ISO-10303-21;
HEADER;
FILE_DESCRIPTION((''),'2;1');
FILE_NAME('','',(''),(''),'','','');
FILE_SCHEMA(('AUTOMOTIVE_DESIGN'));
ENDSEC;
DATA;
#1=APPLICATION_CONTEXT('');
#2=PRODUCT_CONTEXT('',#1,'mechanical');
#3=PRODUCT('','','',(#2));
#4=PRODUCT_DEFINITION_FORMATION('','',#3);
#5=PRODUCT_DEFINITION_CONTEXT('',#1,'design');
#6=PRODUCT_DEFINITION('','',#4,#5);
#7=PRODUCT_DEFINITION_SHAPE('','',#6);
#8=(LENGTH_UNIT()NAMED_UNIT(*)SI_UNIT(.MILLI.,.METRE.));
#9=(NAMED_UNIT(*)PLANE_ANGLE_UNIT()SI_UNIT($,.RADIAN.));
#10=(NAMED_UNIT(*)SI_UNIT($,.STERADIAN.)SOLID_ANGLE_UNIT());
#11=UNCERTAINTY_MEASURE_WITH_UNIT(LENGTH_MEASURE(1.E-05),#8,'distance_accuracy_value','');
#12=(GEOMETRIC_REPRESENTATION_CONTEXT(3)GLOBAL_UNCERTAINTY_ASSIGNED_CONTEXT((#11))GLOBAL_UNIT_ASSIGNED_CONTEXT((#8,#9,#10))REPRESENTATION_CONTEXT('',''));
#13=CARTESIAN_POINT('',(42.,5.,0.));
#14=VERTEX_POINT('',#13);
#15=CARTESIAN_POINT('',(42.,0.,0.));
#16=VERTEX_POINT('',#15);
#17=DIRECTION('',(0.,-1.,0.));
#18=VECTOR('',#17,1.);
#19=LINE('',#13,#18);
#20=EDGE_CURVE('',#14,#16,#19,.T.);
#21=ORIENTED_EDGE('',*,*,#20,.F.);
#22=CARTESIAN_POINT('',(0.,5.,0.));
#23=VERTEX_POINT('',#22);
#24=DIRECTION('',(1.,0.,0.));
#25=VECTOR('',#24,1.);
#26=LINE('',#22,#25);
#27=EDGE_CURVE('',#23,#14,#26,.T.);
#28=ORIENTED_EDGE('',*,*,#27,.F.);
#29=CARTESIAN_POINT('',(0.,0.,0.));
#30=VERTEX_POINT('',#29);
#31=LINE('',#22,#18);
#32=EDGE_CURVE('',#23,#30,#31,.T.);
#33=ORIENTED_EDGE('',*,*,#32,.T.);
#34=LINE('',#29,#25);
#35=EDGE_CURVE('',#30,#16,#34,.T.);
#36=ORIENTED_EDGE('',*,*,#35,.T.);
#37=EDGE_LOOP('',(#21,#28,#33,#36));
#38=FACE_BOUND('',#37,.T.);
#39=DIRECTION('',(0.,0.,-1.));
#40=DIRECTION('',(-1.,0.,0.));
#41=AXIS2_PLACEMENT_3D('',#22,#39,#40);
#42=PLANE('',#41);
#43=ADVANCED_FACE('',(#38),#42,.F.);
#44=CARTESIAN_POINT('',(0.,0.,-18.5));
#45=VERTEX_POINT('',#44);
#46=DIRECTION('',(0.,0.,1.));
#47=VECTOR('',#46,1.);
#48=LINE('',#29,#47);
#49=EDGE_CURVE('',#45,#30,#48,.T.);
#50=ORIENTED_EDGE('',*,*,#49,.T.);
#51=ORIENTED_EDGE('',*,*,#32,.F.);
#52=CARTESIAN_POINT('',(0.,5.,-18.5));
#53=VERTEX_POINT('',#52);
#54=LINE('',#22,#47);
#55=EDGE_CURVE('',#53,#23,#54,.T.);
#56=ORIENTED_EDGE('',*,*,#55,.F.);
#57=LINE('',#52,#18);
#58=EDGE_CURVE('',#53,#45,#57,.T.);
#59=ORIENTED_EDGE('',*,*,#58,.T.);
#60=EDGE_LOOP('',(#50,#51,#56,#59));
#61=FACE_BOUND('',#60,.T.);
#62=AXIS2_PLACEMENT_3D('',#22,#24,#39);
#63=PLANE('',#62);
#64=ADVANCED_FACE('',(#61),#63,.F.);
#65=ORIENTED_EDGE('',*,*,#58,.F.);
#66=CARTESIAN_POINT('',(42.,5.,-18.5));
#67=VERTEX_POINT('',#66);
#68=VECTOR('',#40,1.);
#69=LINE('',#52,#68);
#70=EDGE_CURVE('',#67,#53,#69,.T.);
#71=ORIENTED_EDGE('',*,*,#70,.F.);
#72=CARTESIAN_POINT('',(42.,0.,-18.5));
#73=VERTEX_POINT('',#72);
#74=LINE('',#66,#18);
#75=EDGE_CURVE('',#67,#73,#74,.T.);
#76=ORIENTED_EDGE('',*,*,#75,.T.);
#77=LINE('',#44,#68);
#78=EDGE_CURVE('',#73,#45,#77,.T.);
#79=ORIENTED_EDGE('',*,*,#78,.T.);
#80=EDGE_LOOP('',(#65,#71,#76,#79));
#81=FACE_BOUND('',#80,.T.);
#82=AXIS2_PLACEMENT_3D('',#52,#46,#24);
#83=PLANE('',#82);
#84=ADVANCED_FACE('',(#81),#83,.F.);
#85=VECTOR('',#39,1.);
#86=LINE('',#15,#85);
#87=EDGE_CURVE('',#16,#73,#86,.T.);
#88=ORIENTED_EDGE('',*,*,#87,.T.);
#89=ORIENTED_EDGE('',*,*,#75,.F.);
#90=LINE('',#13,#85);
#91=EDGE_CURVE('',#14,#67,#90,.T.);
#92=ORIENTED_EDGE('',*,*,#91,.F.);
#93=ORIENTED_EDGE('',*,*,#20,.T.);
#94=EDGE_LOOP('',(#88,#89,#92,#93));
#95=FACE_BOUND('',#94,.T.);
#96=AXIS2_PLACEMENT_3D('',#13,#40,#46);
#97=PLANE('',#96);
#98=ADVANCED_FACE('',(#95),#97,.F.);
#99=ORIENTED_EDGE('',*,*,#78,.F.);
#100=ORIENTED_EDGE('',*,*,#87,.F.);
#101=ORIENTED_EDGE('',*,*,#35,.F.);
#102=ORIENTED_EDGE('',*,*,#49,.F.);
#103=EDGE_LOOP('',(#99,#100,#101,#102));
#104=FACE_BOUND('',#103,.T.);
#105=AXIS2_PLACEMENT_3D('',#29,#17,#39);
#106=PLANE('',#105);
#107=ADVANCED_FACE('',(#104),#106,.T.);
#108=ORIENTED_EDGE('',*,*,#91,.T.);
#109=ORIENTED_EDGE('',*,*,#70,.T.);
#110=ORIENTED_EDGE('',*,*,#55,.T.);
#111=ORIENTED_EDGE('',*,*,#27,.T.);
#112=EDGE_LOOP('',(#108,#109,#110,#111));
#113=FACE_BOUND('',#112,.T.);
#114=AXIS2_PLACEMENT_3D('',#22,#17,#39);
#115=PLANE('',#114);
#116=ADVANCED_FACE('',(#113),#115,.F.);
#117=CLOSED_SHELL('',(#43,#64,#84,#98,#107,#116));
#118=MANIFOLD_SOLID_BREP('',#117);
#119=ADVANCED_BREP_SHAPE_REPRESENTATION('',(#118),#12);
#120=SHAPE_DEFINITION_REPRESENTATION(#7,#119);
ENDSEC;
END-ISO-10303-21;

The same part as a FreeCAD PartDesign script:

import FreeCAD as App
import Part
import Sketcher
Q = App.Units.Quantity

doc = App.newDocument("Part")
body = doc.addObject("PartDesign::Body", "Body")

# Sketch on XZ plane
sketch1 = body.newObject("Sketcher::SketchObject", "Sketch")
sketch1.AttachmentSupport = (doc.getObject("XZ_Plane"), [""])
sketch1.MapMode = "FlatFace"
sketch1.addGeometry([
    Part.LineSegment(App.Vector(0, -18.5, 0), App.Vector(0, 0, 0)),
    Part.LineSegment(App.Vector(0, 0, 0), App.Vector(42, 0, 0)),
    Part.LineSegment(App.Vector(42, 0, 0), App.Vector(42, -18.5, 0)),
    Part.LineSegment(App.Vector(42, -18.5, 0), App.Vector(0, -18.5, 0)),
], False)
sketch1.addConstraint([
    Sketcher.Constraint("Coincident", 0, 2, 1, 1),
    Sketcher.Constraint("Coincident", 1, 2, 2, 1),
    Sketcher.Constraint("Coincident", 2, 2, 3, 1),
    Sketcher.Constraint("Coincident", 3, 2, 0, 1),
    Sketcher.Constraint("Vertical", 0),
    Sketcher.Constraint("Horizontal", 1),
    Sketcher.Constraint("Vertical", 2),
    Sketcher.Constraint("Horizontal", 3),
    Sketcher.Constraint("Coincident", 0, 2, -1, 1),
    Sketcher.Constraint("DistanceX", 1, 1, 1, 2, Q("42 mm")),
    Sketcher.Constraint("DistanceY", 0, 1, 0, 2, Q("18.5 mm")),
])
pad1 = body.newObject("PartDesign::Pad", "Pad")
pad1.Profile = sketch1
pad1.Length = 5
pad1.Reversed = True

doc.recompute()
